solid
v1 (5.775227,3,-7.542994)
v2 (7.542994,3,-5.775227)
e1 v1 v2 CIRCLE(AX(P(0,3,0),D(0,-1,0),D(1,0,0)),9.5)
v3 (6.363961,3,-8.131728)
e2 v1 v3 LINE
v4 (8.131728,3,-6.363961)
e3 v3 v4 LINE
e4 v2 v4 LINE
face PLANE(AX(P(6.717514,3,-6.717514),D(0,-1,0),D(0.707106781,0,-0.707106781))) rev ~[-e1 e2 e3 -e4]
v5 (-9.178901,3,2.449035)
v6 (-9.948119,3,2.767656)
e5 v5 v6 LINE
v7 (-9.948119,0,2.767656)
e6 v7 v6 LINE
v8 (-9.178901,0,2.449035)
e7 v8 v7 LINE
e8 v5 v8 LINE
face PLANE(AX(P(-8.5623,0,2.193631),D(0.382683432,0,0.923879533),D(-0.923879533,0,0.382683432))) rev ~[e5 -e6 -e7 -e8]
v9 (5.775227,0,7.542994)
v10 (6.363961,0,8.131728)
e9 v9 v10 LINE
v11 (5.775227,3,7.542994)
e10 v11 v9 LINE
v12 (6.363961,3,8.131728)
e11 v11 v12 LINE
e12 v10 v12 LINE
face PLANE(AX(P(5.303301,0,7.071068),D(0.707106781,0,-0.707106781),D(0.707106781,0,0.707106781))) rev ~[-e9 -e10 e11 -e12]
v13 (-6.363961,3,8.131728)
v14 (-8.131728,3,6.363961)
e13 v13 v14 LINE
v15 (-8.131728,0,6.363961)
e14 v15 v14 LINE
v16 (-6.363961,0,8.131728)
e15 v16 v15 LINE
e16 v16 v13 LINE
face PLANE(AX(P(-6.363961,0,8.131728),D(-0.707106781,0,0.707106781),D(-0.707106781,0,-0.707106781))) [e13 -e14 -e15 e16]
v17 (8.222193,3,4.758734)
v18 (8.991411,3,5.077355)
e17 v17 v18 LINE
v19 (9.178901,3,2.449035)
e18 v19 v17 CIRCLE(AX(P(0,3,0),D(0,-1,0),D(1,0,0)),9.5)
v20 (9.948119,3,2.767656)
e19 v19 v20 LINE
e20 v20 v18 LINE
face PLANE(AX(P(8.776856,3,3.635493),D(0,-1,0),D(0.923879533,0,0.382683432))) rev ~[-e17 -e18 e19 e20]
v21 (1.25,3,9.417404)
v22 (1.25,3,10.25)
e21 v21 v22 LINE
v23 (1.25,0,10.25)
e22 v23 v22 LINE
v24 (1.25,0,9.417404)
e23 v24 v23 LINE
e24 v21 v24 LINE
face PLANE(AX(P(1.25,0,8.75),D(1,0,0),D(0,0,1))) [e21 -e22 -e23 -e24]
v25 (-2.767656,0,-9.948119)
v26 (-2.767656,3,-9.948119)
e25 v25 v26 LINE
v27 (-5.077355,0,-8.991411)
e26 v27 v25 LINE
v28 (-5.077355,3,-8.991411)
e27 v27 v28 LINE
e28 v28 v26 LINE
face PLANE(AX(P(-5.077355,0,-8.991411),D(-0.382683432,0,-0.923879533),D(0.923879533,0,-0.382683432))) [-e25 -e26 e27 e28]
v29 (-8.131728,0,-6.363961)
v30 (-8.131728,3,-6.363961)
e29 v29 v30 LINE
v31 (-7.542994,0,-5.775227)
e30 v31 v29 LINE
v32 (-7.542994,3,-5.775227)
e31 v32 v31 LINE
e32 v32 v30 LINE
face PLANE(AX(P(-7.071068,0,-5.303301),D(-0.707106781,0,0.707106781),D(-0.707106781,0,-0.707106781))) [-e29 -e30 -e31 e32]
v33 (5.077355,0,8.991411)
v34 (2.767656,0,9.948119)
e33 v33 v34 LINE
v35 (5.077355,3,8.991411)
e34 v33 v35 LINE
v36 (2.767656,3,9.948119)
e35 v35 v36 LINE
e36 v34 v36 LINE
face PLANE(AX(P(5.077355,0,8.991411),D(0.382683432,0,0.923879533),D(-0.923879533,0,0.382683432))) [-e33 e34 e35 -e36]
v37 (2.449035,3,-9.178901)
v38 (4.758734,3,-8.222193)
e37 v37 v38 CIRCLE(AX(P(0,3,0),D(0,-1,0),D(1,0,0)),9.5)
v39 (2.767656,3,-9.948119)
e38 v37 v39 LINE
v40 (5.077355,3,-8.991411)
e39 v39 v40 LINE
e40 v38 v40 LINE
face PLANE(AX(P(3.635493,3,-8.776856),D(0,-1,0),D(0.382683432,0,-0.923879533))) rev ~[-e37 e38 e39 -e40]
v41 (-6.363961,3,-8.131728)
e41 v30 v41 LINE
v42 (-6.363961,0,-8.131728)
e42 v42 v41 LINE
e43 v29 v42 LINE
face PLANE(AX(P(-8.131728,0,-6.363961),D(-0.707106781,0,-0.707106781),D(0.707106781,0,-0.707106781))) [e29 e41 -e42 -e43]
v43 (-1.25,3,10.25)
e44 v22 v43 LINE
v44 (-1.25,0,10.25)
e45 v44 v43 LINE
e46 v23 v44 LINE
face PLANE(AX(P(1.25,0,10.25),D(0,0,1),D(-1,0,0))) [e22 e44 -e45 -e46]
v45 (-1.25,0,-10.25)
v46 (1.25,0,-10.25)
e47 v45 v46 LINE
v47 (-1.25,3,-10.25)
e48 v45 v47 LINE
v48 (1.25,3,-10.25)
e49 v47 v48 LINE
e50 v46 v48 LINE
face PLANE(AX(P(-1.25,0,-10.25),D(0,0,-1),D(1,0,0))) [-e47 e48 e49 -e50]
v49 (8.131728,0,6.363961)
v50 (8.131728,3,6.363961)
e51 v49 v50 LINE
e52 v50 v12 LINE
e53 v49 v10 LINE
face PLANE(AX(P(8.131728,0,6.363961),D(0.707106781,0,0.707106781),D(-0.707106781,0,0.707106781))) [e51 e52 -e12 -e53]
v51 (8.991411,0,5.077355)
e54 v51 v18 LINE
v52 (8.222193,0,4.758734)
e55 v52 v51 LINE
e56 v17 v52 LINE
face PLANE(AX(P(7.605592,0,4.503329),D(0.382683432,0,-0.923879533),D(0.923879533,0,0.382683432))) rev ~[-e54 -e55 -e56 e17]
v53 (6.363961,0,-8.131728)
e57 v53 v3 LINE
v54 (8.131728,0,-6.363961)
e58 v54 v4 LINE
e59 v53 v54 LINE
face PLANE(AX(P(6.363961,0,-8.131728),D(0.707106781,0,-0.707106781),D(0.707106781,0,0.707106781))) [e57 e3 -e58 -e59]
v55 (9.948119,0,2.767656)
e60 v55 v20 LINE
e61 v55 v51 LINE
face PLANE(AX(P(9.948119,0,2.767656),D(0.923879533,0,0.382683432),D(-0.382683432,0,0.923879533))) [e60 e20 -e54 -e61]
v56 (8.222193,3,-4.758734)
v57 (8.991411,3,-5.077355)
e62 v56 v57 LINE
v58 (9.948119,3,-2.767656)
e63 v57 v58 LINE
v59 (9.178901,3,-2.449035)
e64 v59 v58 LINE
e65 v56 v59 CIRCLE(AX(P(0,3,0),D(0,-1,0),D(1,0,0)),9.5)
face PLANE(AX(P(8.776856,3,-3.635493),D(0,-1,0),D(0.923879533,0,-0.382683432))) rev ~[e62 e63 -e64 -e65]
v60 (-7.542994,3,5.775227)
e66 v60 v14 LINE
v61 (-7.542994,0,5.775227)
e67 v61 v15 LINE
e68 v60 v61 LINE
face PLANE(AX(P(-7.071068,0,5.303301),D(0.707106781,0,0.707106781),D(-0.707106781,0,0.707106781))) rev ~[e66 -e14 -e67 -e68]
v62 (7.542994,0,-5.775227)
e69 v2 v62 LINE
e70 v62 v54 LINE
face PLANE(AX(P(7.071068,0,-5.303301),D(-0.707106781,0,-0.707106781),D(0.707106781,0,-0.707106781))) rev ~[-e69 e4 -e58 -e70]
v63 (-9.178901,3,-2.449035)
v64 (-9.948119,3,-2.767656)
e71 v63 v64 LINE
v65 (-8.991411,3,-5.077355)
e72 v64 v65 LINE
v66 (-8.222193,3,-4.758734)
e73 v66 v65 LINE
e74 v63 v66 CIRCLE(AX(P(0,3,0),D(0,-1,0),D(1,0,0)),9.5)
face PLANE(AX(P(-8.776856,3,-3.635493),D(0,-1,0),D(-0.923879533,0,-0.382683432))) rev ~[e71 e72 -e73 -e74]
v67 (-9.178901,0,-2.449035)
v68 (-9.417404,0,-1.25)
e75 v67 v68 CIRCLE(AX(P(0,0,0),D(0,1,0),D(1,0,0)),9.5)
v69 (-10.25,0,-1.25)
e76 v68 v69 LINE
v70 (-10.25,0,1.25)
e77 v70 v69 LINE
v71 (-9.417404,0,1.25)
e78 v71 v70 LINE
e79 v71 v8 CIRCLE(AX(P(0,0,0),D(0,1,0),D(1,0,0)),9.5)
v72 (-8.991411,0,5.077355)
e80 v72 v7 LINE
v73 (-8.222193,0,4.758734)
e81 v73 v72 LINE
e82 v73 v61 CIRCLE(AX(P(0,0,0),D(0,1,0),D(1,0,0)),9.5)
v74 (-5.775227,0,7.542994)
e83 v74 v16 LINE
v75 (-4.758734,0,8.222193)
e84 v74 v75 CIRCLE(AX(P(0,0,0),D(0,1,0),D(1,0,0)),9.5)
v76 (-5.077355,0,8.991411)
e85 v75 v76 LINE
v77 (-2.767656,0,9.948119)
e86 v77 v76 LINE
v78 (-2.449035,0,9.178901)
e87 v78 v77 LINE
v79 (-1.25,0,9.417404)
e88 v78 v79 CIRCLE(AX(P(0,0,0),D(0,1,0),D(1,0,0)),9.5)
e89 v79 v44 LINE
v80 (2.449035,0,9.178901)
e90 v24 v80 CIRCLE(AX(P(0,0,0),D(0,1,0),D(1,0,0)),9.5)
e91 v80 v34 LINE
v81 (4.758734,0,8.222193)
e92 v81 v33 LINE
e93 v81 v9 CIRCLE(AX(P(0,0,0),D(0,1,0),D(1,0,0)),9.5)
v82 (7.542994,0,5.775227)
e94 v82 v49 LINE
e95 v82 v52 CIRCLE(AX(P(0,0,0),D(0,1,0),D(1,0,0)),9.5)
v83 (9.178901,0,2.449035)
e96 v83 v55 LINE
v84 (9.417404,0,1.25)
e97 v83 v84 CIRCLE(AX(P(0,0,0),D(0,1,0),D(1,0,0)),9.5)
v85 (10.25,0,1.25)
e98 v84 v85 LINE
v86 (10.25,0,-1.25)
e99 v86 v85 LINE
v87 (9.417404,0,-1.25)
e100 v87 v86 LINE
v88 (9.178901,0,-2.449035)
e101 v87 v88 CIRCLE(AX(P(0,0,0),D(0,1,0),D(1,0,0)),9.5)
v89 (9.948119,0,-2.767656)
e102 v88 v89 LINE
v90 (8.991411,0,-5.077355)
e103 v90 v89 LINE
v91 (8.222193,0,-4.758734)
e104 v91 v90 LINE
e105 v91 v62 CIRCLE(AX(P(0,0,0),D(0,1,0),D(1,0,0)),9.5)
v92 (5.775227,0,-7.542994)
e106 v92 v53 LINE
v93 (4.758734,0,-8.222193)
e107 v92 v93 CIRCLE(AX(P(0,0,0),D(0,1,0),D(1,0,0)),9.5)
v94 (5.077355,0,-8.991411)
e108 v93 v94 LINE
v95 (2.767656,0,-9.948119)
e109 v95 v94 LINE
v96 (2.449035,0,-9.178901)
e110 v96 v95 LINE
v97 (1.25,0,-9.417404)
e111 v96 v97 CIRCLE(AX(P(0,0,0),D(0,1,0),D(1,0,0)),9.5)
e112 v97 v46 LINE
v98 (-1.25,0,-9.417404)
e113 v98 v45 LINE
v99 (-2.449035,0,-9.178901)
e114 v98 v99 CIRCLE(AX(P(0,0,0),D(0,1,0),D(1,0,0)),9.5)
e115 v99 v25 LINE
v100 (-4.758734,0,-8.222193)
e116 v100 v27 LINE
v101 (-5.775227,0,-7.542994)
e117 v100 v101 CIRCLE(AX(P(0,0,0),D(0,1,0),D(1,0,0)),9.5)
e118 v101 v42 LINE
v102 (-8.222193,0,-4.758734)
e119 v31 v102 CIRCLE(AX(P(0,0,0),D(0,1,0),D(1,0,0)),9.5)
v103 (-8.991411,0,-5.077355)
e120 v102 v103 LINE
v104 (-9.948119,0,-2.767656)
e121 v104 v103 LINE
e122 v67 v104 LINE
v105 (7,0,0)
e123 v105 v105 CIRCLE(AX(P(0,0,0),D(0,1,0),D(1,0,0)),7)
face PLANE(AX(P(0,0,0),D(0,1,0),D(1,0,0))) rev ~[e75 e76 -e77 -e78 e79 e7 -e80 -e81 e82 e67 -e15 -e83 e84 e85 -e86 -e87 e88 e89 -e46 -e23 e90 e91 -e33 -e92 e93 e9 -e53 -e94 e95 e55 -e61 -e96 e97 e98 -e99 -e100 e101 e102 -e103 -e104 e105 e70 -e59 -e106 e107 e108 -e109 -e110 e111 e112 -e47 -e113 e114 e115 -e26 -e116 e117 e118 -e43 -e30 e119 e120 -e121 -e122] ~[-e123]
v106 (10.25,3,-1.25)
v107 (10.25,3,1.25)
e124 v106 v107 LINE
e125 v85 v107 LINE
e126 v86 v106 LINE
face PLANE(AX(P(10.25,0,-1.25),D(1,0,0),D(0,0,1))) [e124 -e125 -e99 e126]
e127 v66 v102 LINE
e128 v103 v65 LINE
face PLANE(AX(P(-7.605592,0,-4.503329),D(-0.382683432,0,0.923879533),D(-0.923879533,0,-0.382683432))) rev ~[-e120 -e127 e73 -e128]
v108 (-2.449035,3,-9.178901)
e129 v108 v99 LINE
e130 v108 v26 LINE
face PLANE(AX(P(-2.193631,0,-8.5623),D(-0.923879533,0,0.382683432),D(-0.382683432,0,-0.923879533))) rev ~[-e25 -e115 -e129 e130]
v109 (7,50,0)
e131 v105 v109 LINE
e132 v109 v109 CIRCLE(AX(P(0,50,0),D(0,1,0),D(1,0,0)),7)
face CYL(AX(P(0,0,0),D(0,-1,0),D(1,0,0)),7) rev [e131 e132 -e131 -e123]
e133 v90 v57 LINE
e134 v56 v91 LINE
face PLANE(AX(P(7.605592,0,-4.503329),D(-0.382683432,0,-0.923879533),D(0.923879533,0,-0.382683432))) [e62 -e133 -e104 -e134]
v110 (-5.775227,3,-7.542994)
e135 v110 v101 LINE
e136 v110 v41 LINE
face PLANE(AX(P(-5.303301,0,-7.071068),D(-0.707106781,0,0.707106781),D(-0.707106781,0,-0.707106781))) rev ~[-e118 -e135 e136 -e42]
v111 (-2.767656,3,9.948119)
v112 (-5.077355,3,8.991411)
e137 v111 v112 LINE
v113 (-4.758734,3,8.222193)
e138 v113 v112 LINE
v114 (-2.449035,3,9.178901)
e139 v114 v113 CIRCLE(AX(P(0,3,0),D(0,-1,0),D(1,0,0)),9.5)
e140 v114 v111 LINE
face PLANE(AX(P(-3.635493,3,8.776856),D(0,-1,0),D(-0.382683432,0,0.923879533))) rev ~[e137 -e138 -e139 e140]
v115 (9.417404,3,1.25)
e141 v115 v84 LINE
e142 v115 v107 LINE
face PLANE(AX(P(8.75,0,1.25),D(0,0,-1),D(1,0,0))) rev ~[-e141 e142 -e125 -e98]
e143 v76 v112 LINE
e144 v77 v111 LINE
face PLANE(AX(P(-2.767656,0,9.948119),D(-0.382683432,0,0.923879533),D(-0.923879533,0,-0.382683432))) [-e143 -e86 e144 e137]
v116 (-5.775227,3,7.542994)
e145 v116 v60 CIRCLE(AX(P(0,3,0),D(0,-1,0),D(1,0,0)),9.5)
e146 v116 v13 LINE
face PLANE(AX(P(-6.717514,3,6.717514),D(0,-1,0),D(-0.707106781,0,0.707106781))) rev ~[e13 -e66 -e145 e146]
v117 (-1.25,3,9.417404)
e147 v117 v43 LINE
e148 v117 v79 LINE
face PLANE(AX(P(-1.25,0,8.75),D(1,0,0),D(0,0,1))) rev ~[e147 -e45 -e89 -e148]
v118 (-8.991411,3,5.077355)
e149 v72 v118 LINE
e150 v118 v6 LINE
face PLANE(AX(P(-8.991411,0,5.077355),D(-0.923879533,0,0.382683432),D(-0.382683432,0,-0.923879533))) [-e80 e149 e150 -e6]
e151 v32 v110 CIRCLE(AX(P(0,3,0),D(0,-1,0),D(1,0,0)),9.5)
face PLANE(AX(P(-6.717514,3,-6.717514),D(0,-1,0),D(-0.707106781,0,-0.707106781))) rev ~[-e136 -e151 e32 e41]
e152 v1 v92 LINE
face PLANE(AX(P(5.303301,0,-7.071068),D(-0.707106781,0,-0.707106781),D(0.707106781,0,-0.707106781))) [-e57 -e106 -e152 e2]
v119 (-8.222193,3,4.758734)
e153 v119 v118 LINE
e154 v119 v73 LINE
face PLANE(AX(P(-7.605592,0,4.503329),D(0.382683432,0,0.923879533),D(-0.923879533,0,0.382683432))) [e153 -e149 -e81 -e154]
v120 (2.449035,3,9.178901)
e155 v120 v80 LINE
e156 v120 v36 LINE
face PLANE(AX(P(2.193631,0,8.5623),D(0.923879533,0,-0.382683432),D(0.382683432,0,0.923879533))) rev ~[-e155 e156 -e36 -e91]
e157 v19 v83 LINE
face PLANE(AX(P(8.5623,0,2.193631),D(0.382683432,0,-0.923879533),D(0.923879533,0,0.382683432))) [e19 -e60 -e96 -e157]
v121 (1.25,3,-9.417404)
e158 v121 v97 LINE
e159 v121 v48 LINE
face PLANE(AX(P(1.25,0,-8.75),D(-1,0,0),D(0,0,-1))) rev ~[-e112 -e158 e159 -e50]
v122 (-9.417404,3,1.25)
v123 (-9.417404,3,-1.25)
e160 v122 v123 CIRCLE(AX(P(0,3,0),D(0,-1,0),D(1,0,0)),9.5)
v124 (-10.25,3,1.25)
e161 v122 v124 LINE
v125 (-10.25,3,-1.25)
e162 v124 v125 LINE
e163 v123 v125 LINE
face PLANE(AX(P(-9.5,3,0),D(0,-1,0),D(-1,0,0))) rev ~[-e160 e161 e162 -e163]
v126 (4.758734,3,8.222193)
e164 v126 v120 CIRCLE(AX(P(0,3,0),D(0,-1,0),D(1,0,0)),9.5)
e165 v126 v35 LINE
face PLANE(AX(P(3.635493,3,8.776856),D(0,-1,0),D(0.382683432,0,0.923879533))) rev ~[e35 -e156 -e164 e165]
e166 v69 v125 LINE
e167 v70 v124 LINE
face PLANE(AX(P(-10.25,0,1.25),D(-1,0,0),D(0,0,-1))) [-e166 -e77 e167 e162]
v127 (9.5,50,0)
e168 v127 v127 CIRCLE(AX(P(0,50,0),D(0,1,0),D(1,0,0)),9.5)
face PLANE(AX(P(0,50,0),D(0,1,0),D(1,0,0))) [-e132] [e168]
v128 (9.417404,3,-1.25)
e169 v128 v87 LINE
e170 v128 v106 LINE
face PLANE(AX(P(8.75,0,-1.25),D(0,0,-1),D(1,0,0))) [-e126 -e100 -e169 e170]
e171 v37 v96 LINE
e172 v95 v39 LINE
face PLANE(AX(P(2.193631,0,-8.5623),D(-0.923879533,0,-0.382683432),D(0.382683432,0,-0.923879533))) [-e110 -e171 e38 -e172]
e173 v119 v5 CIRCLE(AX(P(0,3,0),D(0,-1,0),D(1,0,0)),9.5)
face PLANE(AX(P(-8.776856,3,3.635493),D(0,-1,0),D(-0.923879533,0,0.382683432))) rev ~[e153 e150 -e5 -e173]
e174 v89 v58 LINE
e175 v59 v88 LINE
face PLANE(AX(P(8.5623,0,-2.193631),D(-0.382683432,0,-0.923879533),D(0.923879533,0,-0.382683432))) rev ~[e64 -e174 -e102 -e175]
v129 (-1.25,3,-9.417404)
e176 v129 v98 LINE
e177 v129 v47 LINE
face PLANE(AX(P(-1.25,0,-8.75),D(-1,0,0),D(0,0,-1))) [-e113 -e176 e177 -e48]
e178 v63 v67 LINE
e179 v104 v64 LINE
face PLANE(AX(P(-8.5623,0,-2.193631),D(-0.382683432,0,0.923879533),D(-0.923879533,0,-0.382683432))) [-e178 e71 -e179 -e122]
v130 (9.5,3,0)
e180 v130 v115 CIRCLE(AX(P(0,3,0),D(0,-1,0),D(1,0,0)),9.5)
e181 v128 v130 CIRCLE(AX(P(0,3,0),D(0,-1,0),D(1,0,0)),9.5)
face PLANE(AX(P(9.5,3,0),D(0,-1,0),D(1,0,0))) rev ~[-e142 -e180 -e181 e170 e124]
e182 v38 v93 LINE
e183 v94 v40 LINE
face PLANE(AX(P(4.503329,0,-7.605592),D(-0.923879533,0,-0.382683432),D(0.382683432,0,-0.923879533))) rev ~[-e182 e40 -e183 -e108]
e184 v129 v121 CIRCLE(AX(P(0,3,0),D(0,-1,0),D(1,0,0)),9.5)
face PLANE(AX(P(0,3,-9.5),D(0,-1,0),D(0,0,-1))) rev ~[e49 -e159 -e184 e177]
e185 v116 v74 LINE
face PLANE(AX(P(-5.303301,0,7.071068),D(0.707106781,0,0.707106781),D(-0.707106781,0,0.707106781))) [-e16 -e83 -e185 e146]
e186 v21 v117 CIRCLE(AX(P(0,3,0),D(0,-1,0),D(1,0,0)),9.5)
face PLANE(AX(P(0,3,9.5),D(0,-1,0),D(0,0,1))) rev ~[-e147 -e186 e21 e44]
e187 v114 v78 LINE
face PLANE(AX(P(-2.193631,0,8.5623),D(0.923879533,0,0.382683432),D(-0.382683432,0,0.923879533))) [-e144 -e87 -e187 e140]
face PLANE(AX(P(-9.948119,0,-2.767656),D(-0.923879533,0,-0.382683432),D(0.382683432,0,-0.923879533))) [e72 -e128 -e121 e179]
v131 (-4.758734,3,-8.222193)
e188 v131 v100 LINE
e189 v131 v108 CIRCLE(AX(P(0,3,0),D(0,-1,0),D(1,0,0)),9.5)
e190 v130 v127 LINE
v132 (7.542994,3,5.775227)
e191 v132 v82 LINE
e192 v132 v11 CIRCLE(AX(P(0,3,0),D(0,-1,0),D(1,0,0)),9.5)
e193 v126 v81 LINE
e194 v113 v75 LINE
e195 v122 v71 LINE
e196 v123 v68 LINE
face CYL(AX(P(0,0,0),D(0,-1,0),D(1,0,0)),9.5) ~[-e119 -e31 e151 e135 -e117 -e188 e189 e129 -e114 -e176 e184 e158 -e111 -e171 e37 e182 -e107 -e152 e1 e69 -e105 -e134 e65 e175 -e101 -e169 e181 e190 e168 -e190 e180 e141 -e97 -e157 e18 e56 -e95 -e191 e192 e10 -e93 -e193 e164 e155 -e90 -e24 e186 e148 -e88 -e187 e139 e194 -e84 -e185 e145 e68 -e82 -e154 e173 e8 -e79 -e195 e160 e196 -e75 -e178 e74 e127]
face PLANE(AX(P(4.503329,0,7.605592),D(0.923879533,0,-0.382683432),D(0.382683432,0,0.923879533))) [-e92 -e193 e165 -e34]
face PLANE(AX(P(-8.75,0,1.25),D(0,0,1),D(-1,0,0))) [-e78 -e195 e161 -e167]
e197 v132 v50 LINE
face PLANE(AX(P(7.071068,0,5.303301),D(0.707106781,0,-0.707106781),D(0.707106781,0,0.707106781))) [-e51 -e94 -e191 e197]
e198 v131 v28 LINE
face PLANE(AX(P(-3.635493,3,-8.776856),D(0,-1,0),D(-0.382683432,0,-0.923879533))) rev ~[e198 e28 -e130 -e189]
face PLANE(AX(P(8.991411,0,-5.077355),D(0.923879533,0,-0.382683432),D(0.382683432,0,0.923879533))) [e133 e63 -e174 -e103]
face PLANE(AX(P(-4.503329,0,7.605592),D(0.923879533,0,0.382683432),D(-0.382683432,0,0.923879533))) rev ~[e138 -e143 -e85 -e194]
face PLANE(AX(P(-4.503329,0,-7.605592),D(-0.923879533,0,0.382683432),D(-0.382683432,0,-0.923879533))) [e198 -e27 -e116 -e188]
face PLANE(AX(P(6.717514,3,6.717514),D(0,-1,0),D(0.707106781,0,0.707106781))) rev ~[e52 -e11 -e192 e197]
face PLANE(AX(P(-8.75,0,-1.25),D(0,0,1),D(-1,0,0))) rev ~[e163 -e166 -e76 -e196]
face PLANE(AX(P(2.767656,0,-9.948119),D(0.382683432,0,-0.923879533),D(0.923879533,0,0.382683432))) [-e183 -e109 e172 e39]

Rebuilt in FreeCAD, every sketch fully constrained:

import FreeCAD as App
import Part
import Sketcher
Q = App.Units.Quantity


def add_polygon(sketch, points):
    """Adds a closed chain of lines whose ends are joined by coincident constraints."""
    first, n = sketch.GeometryCount, len(points)
    for a, b in zip(points, points[1:] + points[:1]):
        sketch.addGeometry(Part.LineSegment(App.Vector(*a, 0), App.Vector(*b, 0)), False)
    for i in range(n):
        sketch.addConstraint(Sketcher.Constraint("Coincident", first + i, 2, first + (i + 1) % n, 1))

doc = App.newDocument("Part")
body = doc.addObject("PartDesign::Body", "Body")

# Sketch on XZ plane
sketch1 = body.newObject("Sketcher::SketchObject", "Sketch")
sketch1.AttachmentSupport = (doc.getObject("XZ_Plane"), [""])
sketch1.MapMode = "FlatFace"
sketch1.addGeometry([
    Part.Circle(App.Vector(0, 0, 0), App.Vector(0, 0, 1), 10),
    Part.Circle(App.Vector(0, 0, 0), App.Vector(0, 0, 1), 7),
], False)
sketch1.addConstraint([
    Sketcher.Constraint("Coincident", 0, 3, -1, 1),
    Sketcher.Constraint("Coincident", 1, 3, -1, 1),
    Sketcher.Constraint("Diameter", 0, Q("19 mm")),
    Sketcher.Constraint("Diameter", 1, Q("14 mm")),
])
pad1 = body.newObject("PartDesign::Pad", "Pad")
pad1.Profile = sketch1
pad1.Length = 50
pad1.Reversed = True

# Sketch on XZ plane
sketch2 = body.newObject("Sketcher::SketchObject", "Sketch001")
sketch2.AttachmentSupport = (doc.getObject("XZ_Plane"), [""])
sketch2.MapMode = "FlatFace"
add_polygon(sketch2, [(-8.8, -1.2), (-8.8, 1.2), (-10.2, 1.2), (-10.2, -1.2)])  # lines 0-3
sketch2.addConstraint([
    Sketcher.Constraint("Vertical", 0),
    Sketcher.Constraint("Horizontal", 1),
    Sketcher.Constraint("Vertical", 2),
    Sketcher.Constraint("Horizontal", 3),
    Sketcher.Constraint("DistanceX", 1, 2, 1, 1, Q("1.5 mm")),
    Sketcher.Constraint("DistanceY", 0, 1, 0, 2, Q("2.5 mm")),
    Sketcher.Constraint("DistanceX", 0, 2, -1, 1, Q("8.75 mm")),
    Sketcher.Constraint("DistanceY", -1, 1, 0, 2, Q("1.25 mm")),
])
pad2 = body.newObject("PartDesign::Pad", "Pad001")
pad2.Profile = sketch2
pad2.Length = 3
pad2.Reversed = True
doc.recompute()

polarpattern = body.newObject("PartDesign::PolarPattern", "PolarPattern")
polarpattern.Originals = [pad2]
polarpattern.Axis = (doc.getObject("Y_Axis"), [""])
polarpattern.Angle = 360
polarpattern.Occurrences = 16
body.Tip = polarpattern

doc.recompute()
